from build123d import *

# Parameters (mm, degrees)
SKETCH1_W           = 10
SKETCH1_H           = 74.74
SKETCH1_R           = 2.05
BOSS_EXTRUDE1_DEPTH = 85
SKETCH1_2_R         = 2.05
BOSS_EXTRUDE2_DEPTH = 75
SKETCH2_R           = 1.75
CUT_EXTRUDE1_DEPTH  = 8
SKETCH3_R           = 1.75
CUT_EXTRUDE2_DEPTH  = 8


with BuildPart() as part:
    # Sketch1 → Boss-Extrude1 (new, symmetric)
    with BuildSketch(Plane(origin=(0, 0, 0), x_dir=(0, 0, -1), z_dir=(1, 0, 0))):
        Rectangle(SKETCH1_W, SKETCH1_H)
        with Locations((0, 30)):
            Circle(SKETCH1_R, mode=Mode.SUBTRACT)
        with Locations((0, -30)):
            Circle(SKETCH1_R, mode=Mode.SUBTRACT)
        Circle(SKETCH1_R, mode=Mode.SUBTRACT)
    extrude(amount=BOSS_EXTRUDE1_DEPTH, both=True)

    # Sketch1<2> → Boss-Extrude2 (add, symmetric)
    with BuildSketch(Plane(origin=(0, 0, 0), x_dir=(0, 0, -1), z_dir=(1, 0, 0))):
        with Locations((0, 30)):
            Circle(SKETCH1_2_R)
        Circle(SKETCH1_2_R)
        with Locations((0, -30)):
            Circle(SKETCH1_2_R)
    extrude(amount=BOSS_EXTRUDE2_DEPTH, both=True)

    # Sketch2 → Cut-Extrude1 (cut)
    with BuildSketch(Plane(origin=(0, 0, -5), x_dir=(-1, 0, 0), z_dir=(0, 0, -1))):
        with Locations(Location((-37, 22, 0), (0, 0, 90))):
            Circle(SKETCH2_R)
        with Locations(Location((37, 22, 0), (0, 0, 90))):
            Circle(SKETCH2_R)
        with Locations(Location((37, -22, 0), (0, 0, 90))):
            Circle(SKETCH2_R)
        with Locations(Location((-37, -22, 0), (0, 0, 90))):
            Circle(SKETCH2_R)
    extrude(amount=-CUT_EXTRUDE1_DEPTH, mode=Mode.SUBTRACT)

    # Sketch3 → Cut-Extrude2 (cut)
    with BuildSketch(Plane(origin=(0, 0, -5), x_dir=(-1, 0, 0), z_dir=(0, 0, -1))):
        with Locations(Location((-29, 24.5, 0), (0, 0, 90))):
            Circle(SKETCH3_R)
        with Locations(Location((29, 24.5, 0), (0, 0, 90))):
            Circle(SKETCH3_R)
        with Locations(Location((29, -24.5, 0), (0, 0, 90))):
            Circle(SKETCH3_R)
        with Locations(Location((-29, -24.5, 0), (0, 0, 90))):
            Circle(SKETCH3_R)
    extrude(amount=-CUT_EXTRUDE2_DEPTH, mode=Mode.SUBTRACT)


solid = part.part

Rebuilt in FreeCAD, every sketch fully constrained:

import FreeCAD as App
import Part
import Sketcher
Q = App.Units.Quantity

doc = App.newDocument("Part")
body = doc.addObject("PartDesign::Body", "Body")

sketch1 = doc.addObject("Sketcher::SketchObject", "Sketch")
body.addObject(sketch1)
sketch1.AttachmentSupport = (doc.YZ_Plane, [""])
sketch1.MapMode = "FlatFace"
sketch1.addGeometry([
    Part.LineSegment(App.Vector(37.4, 5, 0), App.Vector(-37.4, 5, 0)),
    Part.LineSegment(App.Vector(-37.4, 5, 0), App.Vector(-37.4, -5, 0)),
    Part.LineSegment(App.Vector(-37.4, -5, 0), App.Vector(37.4, -5, 0)),
    Part.LineSegment(App.Vector(37.4, -5, 0), App.Vector(37.4, 5, 0)),
    Part.Circle(App.Vector(-30, 0, 0), App.Vector(0, 0, 1), 2),
    Part.Circle(App.Vector(0, 0, 0), App.Vector(0, 0, 1), 2),
    Part.Circle(App.Vector(30, 0, 0), App.Vector(0, 0, 1), 2),
], False)
sketch1.addConstraint([
    Sketcher.Constraint("Coincident", 0, 2, 1, 1),
    Sketcher.Constraint("Coincident", 1, 2, 2, 1),
    Sketcher.Constraint("Coincident", 2, 2, 3, 1),
    Sketcher.Constraint("Coincident", 3, 2, 0, 1),
    Sketcher.Constraint("Horizontal", 0),
    Sketcher.Constraint("Vertical", 1),
    Sketcher.Constraint("Horizontal", 2),
    Sketcher.Constraint("Vertical", 3),
    Sketcher.Constraint("Coincident", 5, 3, -1, 1),
    Sketcher.Constraint("Equal", 4, 5),
    Sketcher.Constraint("Equal", 5, 6),
    Sketcher.Constraint("Symmetric", 4, 3, 6, 3, -1, 1),
    Sketcher.Constraint("Symmetric", 0, 2, 2, 2, -1, 1),
    Sketcher.Constraint("PointOnObject", 4, 3, -1),
    Sketcher.Constraint("Diameter", 4, Q("4.1 mm")),
    Sketcher.Constraint("DistanceY", 1, 2, 1, 1, Q("10 mm")),
    Sketcher.Constraint("DistanceX", 4, 3, -1, 1, Q("30 mm")),
    Sketcher.Constraint("DistanceX", 0, 2, 0, 1, Q("74.74 mm")),
])
pad1 = doc.addObject("PartDesign::Pad", "Pad")
body.addObject(pad1)
pad1.Profile = sketch1
pad1.Length = 170
pad1.Midplane = True

sketch2 = doc.addObject("Sketcher::SketchObject", "Sketch001")
body.addObject(sketch2)
sketch2.AttachmentSupport = (doc.YZ_Plane, [""])
sketch2.MapMode = "FlatFace"
sketch2.addGeometry([
    Part.Circle(App.Vector(30, 0, 0), App.Vector(0, 0, 1), 2),
    Part.Circle(App.Vector(0, 0, 0), App.Vector(0, 0, 1), 2),
    Part.Circle(App.Vector(-30, 0, 0), App.Vector(0, 0, 1), 2),
], False)
sketch2.addConstraint([
    Sketcher.Constraint("Coincident", 1, 3, -1, 1),
    Sketcher.Constraint("Equal", 0, 1),
    Sketcher.Constraint("Equal", 1, 2),
    Sketcher.Constraint("Symmetric", 0, 3, 2, 3, -1, 1),
    Sketcher.Constraint("PointOnObject", 0, 3, -1),
    Sketcher.Constraint("Diameter", 0, Q("4.1 mm")),
    Sketcher.Constraint("DistanceX", -1, 1, 0, 3, Q("30 mm")),
])
pad2 = doc.addObject("PartDesign::Pad", "Pad001")
body.addObject(pad2)
pad2.Profile = sketch2
pad2.Length = 150
pad2.Midplane = True

sketch3 = doc.addObject("Sketcher::SketchObject", "Sketch002")
body.addObject(sketch3)
sketch3.AttachmentSupport = (doc.XY_Plane, [""])
sketch3.MapMode = "FlatFace"
sketch3.AttachmentOffset = App.Placement(App.Vector(0, 0, -5), App.Rotation())
sketch3.addGeometry([
    Part.Circle(App.Vector(37, 22, 0), App.Vector(0, 0, 1), 1.8),
    Part.Circle(App.Vector(-37, 22, 0), App.Vector(0, 0, 1), 1.8),
    Part.Circle(App.Vector(-37, -22, 0), App.Vector(0, 0, 1), 1.8),
    Part.Circle(App.Vector(37, -22, 0), App.Vector(0, 0, 1), 1.8),
], False)
sketch3.addConstraint([
    Sketcher.Constraint("Equal", 0, 1),
    Sketcher.Constraint("Equal", 1, 2),
    Sketcher.Constraint("Equal", 2, 3),
    Sketcher.Constraint("Symmetric", 0, 3, 2, 3, -1, 1),
    Sketcher.Constraint("Symmetric", 1, 3, 3, 3, -1, 1),
    Sketcher.Constraint("Symmetric", 0, 3, 1, 3, -2),
    Sketcher.Constraint("Diameter", 0, Q("3.5 mm")),
    Sketcher.Constraint("DistanceX", -1, 1, 0, 3, Q("37 mm")),
    Sketcher.Constraint("DistanceY", -1, 1, 0, 3, Q("22 mm")),
])
pocket1 = doc.addObject("PartDesign::Pocket", "Pocket")
body.addObject(pocket1)
pocket1.Profile = sketch3
pocket1.Length = 8
pocket1.Reversed = True

sketch4 = doc.addObject("Sketcher::SketchObject", "Sketch003")
body.addObject(sketch4)
sketch4.AttachmentSupport = (doc.XY_Plane, [""])
sketch4.MapMode = "FlatFace"
sketch4.AttachmentOffset = App.Placement(App.Vector(0, 0, -5), App.Rotation())
sketch4.addGeometry([
    Part.Circle(App.Vector(29, 24.5, 0), App.Vector(0, 0, 1), 1.8),
    Part.Circle(App.Vector(-29, 24.5, 0), App.Vector(0, 0, 1), 1.8),
    Part.Circle(App.Vector(-29, -24.5, 0), App.Vector(0, 0, 1), 1.8),
    Part.Circle(App.Vector(29, -24.5, 0), App.Vector(0, 0, 1), 1.8),
], False)
sketch4.addConstraint([
    Sketcher.Constraint("Equal", 0, 1),
    Sketcher.Constraint("Equal", 1, 2),
    Sketcher.Constraint("Equal", 2, 3),
    Sketcher.Constraint("Symmetric", 0, 3, 2, 3, -1, 1),
    Sketcher.Constraint("Symmetric", 1, 3, 3, 3, -1, 1),
    Sketcher.Constraint("Symmetric", 0, 3, 1, 3, -2),
    Sketcher.Constraint("Diameter", 0, Q("3.5 mm")),
    Sketcher.Constraint("DistanceX", -1, 1, 0, 3, Q("29 mm")),
    Sketcher.Constraint("DistanceY", 2, 3, 1, 3, Q("49 mm")),
])
pocket2 = doc.addObject("PartDesign::Pocket", "Pocket001")
body.addObject(pocket2)
pocket2.Profile = sketch4
pocket2.Length = 8
pocket2.Reversed = True

doc.recompute()
